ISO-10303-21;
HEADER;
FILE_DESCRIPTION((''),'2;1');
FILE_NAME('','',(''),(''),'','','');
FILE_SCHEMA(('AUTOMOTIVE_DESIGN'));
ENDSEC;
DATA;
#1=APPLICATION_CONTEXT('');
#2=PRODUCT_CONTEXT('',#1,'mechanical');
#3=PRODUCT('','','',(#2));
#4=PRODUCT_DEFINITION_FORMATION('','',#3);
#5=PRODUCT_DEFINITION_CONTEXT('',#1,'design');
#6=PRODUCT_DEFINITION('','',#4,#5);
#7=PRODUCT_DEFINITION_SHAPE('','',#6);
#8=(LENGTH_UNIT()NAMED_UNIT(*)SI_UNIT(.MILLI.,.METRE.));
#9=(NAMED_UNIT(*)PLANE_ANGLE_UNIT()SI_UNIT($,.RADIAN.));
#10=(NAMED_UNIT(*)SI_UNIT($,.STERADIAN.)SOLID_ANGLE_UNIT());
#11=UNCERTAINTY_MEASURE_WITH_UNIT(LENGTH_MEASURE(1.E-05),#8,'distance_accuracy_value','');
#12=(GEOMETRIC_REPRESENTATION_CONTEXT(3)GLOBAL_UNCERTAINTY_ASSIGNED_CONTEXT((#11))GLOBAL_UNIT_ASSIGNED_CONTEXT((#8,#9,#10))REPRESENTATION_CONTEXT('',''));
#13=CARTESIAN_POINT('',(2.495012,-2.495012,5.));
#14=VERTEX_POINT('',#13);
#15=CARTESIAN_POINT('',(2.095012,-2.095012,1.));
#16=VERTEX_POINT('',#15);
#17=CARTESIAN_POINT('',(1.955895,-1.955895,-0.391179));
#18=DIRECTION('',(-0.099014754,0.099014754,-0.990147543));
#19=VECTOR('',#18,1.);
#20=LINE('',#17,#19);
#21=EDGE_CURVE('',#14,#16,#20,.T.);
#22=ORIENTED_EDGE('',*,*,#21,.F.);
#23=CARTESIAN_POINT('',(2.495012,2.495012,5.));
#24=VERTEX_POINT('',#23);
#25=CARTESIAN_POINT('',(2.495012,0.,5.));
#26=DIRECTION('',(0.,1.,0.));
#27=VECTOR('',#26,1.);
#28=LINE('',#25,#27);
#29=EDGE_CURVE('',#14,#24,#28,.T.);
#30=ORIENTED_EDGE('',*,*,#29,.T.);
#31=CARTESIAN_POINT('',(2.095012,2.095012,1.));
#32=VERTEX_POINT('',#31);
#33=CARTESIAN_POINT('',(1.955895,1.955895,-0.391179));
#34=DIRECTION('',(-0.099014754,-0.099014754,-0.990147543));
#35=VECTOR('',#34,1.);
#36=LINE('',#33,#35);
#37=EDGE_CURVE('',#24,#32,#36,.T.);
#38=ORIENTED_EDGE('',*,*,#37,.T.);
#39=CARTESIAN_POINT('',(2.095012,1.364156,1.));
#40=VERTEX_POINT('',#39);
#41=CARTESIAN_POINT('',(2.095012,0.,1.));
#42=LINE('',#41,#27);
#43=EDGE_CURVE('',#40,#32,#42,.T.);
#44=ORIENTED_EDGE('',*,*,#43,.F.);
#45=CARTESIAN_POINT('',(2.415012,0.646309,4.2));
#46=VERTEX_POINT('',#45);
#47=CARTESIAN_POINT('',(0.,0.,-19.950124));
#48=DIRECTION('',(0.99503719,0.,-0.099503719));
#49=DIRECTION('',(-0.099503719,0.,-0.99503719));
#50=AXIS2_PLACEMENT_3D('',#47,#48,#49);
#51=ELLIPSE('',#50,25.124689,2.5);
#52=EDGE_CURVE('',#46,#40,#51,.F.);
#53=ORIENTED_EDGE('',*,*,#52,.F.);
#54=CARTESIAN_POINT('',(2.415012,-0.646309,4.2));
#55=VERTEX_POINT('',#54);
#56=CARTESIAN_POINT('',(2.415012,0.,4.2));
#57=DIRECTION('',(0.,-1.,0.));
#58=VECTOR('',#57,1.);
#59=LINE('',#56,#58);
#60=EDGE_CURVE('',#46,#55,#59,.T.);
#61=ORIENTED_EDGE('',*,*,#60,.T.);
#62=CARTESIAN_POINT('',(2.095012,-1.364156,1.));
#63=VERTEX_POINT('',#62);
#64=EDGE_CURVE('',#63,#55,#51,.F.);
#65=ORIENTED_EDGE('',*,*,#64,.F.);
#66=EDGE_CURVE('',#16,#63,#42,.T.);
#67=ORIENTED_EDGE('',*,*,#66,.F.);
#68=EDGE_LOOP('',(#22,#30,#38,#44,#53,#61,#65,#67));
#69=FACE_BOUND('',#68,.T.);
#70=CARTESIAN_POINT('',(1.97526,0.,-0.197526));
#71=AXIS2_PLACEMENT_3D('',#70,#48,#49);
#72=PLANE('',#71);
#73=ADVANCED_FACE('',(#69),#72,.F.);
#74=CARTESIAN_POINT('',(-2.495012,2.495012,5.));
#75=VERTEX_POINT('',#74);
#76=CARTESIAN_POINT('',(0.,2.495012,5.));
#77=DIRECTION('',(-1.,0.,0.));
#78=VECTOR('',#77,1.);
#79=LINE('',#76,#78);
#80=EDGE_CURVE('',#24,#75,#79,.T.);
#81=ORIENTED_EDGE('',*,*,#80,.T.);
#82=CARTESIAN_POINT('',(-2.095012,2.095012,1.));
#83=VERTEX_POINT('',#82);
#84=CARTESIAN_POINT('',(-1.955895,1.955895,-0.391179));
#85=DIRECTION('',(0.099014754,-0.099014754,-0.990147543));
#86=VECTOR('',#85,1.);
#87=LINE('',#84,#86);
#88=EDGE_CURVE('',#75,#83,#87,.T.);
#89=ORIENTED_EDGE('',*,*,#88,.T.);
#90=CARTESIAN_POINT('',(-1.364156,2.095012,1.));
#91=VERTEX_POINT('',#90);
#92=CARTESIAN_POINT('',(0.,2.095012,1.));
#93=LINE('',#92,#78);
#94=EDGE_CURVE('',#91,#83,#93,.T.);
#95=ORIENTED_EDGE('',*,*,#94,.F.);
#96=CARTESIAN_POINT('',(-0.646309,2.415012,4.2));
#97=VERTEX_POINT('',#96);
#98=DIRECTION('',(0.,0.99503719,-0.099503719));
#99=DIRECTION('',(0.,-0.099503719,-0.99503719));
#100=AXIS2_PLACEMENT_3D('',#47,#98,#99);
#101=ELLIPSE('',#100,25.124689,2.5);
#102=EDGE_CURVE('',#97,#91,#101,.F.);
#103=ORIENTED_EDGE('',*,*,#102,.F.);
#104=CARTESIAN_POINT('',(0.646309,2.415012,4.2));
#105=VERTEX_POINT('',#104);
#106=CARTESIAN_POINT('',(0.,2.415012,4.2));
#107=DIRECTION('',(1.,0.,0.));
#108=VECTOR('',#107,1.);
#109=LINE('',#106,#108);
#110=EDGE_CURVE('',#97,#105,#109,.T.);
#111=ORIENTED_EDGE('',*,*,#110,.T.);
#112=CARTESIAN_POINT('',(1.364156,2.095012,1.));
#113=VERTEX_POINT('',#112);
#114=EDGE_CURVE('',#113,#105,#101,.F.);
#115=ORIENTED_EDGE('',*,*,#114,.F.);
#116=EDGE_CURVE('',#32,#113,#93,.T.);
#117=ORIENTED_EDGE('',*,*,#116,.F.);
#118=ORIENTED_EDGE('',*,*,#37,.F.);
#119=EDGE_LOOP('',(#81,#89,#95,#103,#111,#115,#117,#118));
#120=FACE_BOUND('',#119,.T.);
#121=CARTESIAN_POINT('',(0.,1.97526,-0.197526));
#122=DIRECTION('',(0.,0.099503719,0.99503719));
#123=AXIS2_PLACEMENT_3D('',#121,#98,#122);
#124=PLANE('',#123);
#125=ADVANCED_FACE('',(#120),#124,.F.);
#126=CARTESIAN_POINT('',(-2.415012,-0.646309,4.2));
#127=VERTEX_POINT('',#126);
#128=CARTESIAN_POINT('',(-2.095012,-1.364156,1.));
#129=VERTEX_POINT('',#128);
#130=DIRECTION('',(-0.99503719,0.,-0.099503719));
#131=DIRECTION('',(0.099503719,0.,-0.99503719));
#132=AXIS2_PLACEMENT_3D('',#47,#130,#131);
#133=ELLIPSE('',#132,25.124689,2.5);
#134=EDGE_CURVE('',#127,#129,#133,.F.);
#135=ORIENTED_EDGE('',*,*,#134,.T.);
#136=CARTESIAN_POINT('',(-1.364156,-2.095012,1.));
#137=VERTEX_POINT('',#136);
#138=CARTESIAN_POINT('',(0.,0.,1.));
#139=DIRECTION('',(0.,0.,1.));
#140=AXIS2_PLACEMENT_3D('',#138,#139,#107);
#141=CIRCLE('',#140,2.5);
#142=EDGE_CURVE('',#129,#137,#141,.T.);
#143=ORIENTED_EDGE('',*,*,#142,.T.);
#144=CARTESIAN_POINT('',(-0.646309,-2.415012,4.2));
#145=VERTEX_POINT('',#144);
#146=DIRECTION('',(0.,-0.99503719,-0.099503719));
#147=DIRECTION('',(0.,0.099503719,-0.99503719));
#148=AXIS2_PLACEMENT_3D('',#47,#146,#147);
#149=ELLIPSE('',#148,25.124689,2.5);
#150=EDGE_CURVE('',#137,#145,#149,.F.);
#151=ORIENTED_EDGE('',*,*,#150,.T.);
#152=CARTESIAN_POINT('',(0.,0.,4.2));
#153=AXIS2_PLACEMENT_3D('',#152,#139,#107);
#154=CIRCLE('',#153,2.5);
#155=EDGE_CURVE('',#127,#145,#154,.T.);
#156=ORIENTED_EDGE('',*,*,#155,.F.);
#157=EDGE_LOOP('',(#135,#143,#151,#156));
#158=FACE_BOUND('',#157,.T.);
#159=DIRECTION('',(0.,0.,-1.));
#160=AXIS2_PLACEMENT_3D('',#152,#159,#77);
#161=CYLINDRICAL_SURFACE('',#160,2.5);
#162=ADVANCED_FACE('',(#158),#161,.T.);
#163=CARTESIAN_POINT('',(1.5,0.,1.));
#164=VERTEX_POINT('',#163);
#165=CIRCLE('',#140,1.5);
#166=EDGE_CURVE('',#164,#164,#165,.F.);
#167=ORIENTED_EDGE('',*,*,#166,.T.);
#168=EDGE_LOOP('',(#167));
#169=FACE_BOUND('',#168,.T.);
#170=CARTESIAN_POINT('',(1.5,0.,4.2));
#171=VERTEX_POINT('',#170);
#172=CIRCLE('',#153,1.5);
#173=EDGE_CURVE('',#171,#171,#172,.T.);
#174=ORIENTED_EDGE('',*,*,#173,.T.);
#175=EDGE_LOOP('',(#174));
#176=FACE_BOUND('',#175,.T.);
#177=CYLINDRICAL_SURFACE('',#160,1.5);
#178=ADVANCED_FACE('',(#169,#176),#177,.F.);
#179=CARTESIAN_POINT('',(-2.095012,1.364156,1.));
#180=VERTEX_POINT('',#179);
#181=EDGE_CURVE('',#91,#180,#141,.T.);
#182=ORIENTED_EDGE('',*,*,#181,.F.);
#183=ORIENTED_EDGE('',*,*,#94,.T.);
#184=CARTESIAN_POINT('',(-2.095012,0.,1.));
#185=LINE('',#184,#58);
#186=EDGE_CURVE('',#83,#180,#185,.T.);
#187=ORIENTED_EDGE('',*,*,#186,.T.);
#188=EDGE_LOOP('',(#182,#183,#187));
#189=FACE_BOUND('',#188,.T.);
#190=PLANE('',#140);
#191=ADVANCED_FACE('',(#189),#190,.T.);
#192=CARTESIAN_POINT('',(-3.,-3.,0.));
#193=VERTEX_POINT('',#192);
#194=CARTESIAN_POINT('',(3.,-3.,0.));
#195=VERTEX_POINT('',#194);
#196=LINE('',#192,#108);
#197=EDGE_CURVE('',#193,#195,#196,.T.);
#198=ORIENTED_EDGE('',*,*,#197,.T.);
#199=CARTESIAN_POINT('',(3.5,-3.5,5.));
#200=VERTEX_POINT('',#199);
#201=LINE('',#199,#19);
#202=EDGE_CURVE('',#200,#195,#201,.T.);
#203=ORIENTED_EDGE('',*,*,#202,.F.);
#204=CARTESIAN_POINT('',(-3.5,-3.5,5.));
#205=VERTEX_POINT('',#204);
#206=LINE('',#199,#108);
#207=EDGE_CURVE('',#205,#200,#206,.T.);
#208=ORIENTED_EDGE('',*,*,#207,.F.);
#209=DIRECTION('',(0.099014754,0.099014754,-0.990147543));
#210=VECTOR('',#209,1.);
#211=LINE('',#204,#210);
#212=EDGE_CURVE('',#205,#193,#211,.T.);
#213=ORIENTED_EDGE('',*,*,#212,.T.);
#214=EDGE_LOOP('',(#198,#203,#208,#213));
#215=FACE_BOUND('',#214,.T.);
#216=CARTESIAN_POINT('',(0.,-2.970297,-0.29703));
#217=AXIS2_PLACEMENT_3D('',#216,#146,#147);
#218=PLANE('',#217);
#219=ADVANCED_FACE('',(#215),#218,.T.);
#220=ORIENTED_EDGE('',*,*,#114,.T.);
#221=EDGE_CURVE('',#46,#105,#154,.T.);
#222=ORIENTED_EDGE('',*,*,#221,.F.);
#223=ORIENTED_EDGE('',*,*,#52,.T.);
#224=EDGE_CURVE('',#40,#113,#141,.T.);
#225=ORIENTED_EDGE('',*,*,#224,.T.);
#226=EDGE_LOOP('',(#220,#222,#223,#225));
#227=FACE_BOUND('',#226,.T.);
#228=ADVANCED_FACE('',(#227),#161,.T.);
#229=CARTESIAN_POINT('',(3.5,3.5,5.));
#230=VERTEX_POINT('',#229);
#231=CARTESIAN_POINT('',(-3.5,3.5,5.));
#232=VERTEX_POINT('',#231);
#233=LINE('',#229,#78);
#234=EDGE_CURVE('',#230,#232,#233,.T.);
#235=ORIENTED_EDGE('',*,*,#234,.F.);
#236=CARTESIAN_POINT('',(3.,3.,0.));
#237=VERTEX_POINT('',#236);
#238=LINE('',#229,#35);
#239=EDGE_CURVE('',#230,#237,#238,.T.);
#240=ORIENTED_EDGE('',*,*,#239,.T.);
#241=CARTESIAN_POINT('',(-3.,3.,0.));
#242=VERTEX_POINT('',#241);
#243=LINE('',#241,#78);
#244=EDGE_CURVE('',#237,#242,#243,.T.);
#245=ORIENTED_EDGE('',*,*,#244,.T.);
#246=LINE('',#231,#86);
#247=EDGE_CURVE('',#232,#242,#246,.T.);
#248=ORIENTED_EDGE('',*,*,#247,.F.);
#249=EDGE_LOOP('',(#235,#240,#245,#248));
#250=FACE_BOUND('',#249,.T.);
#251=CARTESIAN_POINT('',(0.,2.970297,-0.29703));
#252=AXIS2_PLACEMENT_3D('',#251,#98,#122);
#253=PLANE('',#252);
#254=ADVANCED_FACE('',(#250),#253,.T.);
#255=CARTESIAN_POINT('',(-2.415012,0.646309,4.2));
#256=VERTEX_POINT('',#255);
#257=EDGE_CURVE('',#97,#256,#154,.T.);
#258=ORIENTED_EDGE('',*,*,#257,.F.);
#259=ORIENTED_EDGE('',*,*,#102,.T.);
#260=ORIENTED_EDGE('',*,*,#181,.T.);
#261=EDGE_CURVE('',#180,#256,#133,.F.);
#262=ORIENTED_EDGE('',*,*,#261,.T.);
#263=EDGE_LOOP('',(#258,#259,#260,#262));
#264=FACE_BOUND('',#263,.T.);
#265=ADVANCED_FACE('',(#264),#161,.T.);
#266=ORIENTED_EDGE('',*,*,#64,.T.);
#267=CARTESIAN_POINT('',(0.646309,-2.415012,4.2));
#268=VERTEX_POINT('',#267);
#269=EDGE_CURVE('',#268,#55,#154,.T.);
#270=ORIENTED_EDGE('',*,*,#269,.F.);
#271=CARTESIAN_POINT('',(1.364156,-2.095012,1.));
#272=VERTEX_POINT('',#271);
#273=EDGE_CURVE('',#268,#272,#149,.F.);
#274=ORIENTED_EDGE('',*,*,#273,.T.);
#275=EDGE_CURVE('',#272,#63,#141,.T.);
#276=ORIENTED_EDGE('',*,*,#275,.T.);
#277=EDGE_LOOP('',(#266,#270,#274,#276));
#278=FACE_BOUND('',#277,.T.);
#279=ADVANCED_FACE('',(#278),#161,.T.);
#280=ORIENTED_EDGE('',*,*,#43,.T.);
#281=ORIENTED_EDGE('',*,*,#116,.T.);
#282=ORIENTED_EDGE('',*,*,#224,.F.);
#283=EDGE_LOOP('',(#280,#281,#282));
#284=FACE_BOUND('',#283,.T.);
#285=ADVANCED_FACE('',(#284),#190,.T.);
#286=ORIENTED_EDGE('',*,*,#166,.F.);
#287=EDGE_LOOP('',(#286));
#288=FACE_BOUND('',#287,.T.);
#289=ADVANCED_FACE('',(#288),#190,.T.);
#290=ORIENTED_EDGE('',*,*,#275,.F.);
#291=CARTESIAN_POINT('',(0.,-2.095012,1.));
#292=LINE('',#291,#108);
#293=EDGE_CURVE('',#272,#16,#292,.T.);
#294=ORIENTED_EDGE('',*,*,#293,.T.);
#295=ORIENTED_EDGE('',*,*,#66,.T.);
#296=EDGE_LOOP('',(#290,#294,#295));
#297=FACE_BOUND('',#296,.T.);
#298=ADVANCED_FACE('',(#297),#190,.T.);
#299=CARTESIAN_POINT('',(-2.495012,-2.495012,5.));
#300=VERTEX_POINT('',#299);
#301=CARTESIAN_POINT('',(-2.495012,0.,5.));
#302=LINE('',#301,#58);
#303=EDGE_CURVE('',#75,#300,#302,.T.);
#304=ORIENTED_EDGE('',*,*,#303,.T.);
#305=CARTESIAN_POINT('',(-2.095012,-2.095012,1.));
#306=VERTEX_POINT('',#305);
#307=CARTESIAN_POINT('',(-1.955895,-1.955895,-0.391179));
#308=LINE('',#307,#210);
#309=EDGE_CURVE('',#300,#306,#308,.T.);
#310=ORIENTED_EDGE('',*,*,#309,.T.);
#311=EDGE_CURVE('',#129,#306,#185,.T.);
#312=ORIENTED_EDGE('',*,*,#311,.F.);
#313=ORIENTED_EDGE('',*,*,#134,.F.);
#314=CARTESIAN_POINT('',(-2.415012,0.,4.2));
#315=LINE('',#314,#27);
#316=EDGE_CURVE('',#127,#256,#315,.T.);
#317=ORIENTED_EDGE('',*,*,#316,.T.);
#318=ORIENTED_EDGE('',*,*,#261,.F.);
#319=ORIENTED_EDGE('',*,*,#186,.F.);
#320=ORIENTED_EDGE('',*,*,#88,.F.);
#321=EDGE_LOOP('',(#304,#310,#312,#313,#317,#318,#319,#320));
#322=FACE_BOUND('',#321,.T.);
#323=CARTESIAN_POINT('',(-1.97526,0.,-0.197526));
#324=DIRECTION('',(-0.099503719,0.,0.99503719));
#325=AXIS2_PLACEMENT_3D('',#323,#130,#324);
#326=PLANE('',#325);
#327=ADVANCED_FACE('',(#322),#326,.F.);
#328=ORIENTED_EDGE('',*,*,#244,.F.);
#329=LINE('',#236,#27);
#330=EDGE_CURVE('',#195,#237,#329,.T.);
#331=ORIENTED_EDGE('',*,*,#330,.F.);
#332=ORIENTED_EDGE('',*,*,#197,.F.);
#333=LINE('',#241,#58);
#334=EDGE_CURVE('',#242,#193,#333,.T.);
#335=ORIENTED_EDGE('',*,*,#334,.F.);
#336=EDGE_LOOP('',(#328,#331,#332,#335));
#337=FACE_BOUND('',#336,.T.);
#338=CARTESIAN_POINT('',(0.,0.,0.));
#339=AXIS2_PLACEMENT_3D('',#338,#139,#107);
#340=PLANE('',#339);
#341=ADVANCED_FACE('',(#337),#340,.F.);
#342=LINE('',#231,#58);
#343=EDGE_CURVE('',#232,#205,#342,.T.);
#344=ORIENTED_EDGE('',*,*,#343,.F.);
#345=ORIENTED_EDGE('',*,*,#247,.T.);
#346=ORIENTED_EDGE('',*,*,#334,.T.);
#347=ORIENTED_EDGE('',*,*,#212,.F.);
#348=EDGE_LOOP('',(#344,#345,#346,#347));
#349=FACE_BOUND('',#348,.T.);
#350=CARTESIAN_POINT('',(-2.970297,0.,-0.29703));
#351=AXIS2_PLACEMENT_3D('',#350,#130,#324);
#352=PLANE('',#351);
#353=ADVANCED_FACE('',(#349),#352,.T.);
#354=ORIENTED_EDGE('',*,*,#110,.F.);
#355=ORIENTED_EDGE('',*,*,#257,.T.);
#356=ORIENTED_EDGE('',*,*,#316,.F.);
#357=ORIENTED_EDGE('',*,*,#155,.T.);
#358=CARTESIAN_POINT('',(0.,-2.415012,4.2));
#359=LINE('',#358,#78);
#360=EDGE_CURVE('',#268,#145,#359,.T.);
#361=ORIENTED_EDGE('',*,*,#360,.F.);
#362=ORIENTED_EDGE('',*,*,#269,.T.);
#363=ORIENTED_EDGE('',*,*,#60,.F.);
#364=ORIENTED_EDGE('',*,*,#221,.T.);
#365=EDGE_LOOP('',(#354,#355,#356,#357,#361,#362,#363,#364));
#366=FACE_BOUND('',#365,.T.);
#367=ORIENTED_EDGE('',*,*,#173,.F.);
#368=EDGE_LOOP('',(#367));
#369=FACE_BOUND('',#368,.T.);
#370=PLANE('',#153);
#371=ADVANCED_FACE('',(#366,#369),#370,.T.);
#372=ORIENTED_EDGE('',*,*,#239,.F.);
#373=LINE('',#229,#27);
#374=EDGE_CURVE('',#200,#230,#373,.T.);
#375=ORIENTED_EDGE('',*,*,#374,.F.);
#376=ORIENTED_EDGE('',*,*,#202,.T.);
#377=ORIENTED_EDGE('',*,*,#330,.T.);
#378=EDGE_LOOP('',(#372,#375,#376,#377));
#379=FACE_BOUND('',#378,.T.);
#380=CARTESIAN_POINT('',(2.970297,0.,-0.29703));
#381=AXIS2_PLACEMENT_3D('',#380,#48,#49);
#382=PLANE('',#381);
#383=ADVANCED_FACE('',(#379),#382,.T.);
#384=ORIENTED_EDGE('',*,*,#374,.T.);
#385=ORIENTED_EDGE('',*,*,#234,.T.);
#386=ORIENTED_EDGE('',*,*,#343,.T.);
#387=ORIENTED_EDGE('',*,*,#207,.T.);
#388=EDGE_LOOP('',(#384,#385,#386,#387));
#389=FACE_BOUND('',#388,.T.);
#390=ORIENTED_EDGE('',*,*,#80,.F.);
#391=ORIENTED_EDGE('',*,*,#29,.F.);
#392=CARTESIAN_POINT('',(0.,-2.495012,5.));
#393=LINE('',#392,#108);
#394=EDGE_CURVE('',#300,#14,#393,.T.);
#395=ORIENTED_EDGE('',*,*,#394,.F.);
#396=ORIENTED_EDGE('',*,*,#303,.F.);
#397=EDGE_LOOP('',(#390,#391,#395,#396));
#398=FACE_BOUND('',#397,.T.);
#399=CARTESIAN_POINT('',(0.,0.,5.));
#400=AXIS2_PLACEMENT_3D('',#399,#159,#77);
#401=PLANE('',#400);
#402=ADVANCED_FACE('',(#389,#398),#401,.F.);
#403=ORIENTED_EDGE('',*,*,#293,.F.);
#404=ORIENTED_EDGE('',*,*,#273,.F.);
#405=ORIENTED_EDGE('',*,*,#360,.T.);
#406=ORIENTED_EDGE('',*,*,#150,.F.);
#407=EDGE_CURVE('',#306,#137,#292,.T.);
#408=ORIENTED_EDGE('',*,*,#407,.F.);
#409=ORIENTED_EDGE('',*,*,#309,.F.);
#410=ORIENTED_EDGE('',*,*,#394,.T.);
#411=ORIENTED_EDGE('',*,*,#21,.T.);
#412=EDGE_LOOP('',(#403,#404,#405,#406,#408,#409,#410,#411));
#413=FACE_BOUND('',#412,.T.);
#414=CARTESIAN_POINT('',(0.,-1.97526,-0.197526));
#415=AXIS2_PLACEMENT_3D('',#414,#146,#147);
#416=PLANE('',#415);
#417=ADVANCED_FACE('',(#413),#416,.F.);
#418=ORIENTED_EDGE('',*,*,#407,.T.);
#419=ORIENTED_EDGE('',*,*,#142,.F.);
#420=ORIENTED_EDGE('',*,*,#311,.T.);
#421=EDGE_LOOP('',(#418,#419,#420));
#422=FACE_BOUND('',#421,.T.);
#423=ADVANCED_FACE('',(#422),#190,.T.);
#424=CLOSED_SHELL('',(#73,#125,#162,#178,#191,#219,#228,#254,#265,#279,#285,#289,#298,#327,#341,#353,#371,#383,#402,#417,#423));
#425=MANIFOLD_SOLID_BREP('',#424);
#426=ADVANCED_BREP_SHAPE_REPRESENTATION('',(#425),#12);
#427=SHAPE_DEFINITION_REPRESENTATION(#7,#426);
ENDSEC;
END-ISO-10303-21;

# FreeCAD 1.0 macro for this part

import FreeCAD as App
import Part
import Sketcher
from FreeCAD import Vector


def faces_at(feature, points):
    """Names of the faces that lie closest to the given points."""
    faces = feature.Shape.Faces
    near = lambda p: min(range(len(faces)), key=lambda i: faces[i].distToShape(Part.Vertex(*p))[0])
    return sorted({f"Face{near(p) + 1}" for p in points})

doc = App.newDocument("Part")
body = doc.addObject("PartDesign::Body", "Body")

# Sketch on XY plane
sketch1 = body.newObject("Sketcher::SketchObject", "Sketch")
sketch1.AttachmentSupport = (doc.getObject("XY_Plane"), [""])
sketch1.MapMode = "FlatFace"
sketch1.AttachmentOffset = App.Placement(Vector(0, 0, 5), App.Rotation())
sketch1.addGeometry(Part.LineSegment(Vector(4, 4, 0), Vector(-4, 4, 0)), False)
sketch1.addGeometry(Part.LineSegment(Vector(-4, 4, 0), Vector(-4, -4, 0)), False)
sketch1.addGeometry(Part.LineSegment(Vector(-4, -4, 0), Vector(4, -4, 0)), False)
sketch1.addGeometry(Part.LineSegment(Vector(4, -4, 0), Vector(4, 4, 0)), False)
sketch1.addConstraint(Sketcher.Constraint("Coincident", 0, 2, 1, 1))
sketch1.addConstraint(Sketcher.Constraint("Coincident", 1, 2, 2, 1))
sketch1.addConstraint(Sketcher.Constraint("Coincident", 2, 2, 3, 1))
sketch1.addConstraint(Sketcher.Constraint("Coincident", 3, 2, 0, 1))
sketch1.addConstraint(Sketcher.Constraint("Horizontal", 0))
sketch1.addConstraint(Sketcher.Constraint("Vertical", 1))
sketch1.addConstraint(Sketcher.Constraint("Horizontal", 2))
sketch1.addConstraint(Sketcher.Constraint("Vertical", 3))
sketch1.addConstraint(Sketcher.Constraint("Symmetric", 0, 2, 2, 2, -1, 1))
sketch1.addConstraint(Sketcher.Constraint("Equal", 2, 1))
sketch1.addConstraint(Sketcher.Constraint("DistanceX", 0, 2, 0, 1, 7.0))

# Sketch on XY plane
sketch2 = body.newObject("Sketcher::SketchObject", "Sketch001")
sketch2.AttachmentSupport = (doc.getObject("XY_Plane"), [""])
sketch2.MapMode = "FlatFace"
sketch2.addGeometry(Part.LineSegment(Vector(3, 3, 0), Vector(-3, 3, 0)), False)
sketch2.addGeometry(Part.LineSegment(Vector(-3, 3, 0), Vector(-3, -3, 0)), False)
sketch2.addGeometry(Part.LineSegment(Vector(-3, -3, 0), Vector(3, -3, 0)), False)
sketch2.addGeometry(Part.LineSegment(Vector(3, -3, 0), Vector(3, 3, 0)), False)
sketch2.addConstraint(Sketcher.Constraint("Coincident", 0, 2, 1, 1))
sketch2.addConstraint(Sketcher.Constraint("Coincident", 1, 2, 2, 1))
sketch2.addConstraint(Sketcher.Constraint("Coincident", 2, 2, 3, 1))
sketch2.addConstraint(Sketcher.Constraint("Coincident", 3, 2, 0, 1))
sketch2.addConstraint(Sketcher.Constraint("Horizontal", 0))
sketch2.addConstraint(Sketcher.Constraint("Vertical", 1))
sketch2.addConstraint(Sketcher.Constraint("Horizontal", 2))
sketch2.addConstraint(Sketcher.Constraint("Vertical", 3))
sketch2.addConstraint(Sketcher.Constraint("Symmetric", 0, 2, 2, 2, -1, 1))
sketch2.addConstraint(Sketcher.Constraint("Equal", 2, 1))
sketch2.addConstraint(Sketcher.Constraint("DistanceX", 0, 2, 0, 1, 6.0))

additiveloft = body.newObject("PartDesign::AdditiveLoft", "AdditiveLoft")
additiveloft.Profile = sketch1
additiveloft.Sections = [sketch2]
doc.recompute()

thickness = body.newObject("PartDesign::Thickness", "Thickness")
thickness.Base = (additiveloft, faces_at(additiveloft, [(0, 0, 5)]))
thickness.Value = 1
thickness.Reversed = True
thickness.Join = "Intersection"

# Sketch on XY plane
sketch3 = body.newObject("Sketcher::SketchObject", "Sketch002")
sketch3.AttachmentSupport = (doc.getObject("XY_Plane"), [""])
sketch3.MapMode = "FlatFace"
sketch3.AttachmentOffset = App.Placement(Vector(0, 0, 1), App.Rotation())
sketch3.addGeometry(Part.Circle(Vector(0, 0, 0), Vector(0, 0, 1), 2.5), False)
sketch3.addGeometry(Part.Circle(Vector(0, 0, 0), Vector(0, 0, 1), 1.5), False)
sketch3.addConstraint(Sketcher.Constraint("Coincident", 0, 3, -1, 1))
sketch3.addConstraint(Sketcher.Constraint("Coincident", 1, 3, -1, 1))
sketch3.addConstraint(Sketcher.Constraint("Diameter", 0, 5.0))
sketch3.addConstraint(Sketcher.Constraint("Diameter", 1, 3.0))
pad1 = body.newObject("PartDesign::Pad", "Pad")
pad1.Profile = sketch3
pad1.Length = 3.2

doc.recompute()
